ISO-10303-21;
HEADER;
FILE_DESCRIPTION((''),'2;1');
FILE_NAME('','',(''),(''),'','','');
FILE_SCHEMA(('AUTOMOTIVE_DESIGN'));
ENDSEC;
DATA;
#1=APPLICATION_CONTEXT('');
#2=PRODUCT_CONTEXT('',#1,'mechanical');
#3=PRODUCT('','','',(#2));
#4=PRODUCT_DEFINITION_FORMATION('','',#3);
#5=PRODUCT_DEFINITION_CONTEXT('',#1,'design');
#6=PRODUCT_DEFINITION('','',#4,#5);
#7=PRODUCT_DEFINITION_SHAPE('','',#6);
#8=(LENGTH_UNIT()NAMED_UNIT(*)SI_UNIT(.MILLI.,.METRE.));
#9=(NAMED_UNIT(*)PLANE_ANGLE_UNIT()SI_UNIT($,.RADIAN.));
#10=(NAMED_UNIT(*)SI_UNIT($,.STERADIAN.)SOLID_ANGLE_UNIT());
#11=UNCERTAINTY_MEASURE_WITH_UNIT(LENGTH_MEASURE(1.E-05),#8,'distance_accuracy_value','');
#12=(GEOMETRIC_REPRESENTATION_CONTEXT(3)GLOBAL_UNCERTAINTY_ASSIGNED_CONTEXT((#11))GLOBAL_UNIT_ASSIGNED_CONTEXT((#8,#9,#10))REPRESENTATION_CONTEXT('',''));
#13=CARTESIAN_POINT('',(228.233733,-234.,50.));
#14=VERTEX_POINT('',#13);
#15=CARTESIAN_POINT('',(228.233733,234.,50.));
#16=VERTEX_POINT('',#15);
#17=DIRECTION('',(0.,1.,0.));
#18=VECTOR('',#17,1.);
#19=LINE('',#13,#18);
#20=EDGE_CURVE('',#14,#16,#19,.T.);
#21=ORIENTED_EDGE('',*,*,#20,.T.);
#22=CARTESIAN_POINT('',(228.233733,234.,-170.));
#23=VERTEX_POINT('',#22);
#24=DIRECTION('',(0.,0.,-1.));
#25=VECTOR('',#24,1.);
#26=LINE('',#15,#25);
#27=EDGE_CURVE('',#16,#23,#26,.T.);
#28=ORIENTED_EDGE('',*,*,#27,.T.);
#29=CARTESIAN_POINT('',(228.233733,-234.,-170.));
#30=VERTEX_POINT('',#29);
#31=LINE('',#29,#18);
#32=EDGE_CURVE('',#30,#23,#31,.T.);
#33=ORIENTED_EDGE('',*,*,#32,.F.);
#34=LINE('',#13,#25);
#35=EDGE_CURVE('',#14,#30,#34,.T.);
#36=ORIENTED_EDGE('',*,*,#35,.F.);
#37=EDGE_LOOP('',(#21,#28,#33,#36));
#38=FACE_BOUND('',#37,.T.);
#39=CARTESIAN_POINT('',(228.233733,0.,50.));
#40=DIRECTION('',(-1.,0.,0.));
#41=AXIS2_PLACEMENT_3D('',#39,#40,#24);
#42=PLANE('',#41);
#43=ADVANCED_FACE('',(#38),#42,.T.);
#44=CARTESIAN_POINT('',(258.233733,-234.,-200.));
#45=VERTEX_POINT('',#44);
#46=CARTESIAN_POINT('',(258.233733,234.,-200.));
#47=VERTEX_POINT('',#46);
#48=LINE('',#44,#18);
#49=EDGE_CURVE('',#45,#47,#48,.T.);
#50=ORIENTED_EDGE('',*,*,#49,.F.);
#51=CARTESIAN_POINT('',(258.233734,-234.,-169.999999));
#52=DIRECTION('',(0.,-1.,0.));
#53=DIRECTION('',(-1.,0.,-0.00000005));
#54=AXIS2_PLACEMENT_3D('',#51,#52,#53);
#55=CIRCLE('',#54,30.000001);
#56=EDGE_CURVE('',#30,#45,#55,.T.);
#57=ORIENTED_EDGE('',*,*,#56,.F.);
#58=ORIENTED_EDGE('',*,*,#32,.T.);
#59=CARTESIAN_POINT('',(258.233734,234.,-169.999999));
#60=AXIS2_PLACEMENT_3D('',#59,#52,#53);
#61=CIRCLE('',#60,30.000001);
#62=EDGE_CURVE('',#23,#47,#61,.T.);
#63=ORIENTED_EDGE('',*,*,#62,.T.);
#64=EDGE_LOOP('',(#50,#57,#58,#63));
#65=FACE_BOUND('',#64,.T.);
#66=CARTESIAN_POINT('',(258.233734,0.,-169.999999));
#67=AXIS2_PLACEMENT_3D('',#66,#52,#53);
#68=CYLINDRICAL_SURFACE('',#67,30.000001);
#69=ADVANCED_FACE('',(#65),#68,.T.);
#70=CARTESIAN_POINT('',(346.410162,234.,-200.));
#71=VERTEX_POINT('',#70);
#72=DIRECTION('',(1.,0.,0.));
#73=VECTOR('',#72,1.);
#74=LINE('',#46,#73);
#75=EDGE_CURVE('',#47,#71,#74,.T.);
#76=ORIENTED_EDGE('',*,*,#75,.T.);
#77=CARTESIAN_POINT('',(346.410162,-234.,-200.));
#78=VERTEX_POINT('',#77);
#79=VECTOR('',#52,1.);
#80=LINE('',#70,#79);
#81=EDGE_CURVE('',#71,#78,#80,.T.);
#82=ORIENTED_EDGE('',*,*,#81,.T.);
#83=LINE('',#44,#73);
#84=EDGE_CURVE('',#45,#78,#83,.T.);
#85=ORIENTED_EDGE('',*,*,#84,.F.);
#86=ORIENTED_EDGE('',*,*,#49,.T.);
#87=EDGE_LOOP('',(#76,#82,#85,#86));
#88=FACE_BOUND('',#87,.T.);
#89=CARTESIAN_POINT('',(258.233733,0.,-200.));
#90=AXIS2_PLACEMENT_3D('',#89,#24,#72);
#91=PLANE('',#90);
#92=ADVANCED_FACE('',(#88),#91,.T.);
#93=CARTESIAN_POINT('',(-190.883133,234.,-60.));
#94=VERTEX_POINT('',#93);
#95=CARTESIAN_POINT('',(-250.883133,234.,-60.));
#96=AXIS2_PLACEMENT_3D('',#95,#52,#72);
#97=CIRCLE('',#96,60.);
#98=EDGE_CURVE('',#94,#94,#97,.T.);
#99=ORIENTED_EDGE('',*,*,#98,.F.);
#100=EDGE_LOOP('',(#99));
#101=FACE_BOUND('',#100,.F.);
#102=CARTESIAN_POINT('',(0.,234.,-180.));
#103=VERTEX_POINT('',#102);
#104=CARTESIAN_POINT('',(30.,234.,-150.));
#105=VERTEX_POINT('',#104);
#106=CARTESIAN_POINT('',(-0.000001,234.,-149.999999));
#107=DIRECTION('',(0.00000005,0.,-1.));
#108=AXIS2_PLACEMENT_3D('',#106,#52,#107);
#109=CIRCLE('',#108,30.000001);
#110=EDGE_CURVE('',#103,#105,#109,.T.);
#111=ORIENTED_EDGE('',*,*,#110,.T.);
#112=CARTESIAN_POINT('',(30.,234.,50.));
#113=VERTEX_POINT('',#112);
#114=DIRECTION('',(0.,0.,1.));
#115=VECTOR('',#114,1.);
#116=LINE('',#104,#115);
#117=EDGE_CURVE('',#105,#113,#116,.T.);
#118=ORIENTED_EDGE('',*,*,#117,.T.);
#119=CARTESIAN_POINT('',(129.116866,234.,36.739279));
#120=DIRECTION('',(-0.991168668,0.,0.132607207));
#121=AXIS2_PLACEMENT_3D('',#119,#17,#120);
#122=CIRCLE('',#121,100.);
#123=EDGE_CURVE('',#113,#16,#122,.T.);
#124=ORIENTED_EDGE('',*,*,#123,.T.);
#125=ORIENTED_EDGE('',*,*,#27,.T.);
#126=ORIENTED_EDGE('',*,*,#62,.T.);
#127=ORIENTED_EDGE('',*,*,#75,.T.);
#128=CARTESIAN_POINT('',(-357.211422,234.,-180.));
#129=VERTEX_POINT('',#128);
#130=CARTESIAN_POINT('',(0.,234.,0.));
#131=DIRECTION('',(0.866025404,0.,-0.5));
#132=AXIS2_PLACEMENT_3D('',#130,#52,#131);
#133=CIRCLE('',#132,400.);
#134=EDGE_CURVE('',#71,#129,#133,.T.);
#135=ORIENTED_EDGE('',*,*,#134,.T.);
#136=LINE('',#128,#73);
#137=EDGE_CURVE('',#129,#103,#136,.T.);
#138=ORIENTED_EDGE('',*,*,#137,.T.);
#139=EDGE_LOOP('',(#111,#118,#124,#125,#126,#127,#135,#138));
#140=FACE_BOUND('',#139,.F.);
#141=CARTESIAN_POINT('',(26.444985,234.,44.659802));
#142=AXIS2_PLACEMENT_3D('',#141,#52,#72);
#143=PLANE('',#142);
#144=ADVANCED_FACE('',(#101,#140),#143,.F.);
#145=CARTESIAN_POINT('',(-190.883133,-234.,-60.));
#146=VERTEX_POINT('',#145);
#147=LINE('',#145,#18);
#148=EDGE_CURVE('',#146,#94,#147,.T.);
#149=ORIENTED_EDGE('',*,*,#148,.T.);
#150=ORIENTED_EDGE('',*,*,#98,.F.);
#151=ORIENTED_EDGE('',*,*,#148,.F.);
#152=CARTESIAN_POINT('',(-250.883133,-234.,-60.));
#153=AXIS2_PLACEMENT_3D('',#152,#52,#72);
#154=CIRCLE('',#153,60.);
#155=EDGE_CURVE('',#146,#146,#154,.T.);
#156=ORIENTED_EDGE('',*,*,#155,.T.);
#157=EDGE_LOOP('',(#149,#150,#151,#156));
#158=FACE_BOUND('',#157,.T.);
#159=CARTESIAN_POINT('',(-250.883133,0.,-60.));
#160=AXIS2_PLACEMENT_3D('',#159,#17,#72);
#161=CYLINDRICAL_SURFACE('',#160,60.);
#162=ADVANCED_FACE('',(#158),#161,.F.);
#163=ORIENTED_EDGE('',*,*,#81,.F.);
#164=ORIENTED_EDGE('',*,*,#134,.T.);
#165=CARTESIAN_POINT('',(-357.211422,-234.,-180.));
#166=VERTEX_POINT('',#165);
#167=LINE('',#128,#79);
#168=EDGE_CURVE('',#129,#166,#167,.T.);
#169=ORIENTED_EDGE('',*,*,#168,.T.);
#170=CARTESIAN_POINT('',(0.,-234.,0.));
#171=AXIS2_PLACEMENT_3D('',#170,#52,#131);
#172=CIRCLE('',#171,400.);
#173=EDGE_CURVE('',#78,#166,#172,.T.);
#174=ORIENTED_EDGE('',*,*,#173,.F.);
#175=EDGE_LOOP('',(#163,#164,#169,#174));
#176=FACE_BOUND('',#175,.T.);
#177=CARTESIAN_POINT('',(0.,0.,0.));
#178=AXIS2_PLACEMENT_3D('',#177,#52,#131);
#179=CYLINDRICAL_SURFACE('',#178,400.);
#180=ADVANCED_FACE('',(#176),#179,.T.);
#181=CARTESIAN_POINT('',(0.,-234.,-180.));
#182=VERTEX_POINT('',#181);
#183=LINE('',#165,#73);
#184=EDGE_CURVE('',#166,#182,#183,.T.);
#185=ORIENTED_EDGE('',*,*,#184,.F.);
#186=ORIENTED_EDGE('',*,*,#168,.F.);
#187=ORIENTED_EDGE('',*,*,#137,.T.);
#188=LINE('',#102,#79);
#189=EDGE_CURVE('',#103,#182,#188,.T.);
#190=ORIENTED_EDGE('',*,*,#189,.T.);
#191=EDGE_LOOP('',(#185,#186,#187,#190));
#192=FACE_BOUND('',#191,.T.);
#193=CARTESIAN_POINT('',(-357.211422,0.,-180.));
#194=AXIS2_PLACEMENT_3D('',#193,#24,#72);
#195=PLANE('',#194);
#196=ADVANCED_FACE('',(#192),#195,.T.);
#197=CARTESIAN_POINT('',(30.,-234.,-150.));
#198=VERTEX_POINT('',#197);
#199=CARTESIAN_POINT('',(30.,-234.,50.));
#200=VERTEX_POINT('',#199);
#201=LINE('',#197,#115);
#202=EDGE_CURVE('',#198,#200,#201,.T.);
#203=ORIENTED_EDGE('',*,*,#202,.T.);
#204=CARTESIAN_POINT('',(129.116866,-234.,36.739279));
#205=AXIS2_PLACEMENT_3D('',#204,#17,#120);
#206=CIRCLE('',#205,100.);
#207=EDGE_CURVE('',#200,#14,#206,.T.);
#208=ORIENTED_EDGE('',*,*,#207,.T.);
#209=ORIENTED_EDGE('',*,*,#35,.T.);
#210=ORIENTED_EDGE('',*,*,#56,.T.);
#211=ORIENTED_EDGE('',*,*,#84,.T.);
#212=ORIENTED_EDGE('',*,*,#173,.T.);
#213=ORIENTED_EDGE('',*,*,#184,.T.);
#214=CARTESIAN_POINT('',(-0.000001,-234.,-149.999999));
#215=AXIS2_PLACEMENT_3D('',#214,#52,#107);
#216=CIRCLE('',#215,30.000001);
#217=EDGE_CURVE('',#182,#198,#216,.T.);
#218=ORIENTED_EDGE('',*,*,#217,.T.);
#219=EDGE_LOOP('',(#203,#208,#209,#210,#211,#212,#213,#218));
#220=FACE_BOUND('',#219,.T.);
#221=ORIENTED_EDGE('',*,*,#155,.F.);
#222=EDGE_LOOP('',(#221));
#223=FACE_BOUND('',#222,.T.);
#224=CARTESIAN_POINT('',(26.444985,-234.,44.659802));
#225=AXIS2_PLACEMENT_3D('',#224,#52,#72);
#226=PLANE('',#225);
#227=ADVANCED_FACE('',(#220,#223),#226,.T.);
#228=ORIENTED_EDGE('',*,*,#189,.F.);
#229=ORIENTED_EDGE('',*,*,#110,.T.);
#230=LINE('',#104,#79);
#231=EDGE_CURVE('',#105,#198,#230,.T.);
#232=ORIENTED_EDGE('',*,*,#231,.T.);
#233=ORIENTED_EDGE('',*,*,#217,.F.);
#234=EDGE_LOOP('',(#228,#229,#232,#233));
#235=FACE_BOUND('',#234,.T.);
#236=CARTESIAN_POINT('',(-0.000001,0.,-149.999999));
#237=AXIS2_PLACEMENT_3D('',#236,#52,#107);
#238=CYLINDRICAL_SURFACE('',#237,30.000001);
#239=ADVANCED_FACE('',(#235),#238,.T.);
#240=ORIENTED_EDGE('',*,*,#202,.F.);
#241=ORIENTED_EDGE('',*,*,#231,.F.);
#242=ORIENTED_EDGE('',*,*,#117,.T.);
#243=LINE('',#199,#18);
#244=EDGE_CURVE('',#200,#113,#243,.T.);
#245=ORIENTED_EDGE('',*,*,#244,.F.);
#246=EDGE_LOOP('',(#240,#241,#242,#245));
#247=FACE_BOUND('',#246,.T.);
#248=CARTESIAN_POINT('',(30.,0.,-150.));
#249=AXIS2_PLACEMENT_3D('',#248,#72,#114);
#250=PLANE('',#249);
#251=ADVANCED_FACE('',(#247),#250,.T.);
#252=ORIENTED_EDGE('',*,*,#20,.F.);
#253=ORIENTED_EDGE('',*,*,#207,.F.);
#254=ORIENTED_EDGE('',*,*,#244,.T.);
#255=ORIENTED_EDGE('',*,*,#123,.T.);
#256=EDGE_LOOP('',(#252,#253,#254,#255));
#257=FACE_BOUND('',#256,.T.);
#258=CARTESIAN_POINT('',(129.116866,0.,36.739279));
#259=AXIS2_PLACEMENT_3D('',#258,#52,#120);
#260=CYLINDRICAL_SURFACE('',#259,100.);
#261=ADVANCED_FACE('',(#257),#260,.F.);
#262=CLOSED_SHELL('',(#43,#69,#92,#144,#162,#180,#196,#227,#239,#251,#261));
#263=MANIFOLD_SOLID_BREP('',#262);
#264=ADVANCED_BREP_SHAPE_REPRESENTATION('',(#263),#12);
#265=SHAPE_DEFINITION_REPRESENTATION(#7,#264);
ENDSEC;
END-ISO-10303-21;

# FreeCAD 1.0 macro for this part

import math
import FreeCAD as App
import Part
import Sketcher

V = App.Vector
Q = App.Units.Quantity

doc = App.newDocument("Part")
body = doc.addObject("PartDesign::Body", "Body")

# Sketch on XZ plane
sketch1 = doc.addObject("Sketcher::SketchObject", "Sketch")
body.addObject(sketch1)
sketch1.AttachmentSupport = (doc.XZ_Plane, [""])
sketch1.MapMode = "FlatFace"
sketch1.addGeometry([
    Part.LineSegment(V(258, -200, 0), V(346, -200, 0)),  # 0
    Part.ArcOfCircle(Part.Circle(V(0, 0, 0), V(0, 0, 1), 400), math.radians(-30), math.radians(207)),  # 1
    Part.LineSegment(V(-357, -180, 0), V(0, -180, 0)),  # 2
    Part.ArcOfCircle(Part.Circle(V(0, -150, 0), V(0, 0, 1), 30), math.radians(-90), math.radians(0)),  # 3
    Part.LineSegment(V(30, -150, 0), V(30, 50, 0)),  # 4
    Part.ArcOfCircle(Part.Circle(V(129, 37, 0), V(0, 0, 1), 100), math.radians(8), math.radians(172)),  # 5
    Part.LineSegment(V(228, 50, 0), V(228, -170, 0)),  # 6
    Part.ArcOfCircle(Part.Circle(V(258, -170, 0), V(0, 0, 1), 30), math.radians(-180), math.radians(-90)),  # 7
    Part.Circle(V(-251, -60, 0), V(0, 0, 1), 60),  # 8
], False)
sketch1.addConstraint([
    Sketcher.Constraint("Coincident", 0, 2, 1, 1),
    Sketcher.Constraint("Coincident", 1, 2, 2, 1),
    Sketcher.Constraint("Tangent", 2, 2, 3, 1),
    Sketcher.Constraint("Tangent", 3, 2, 4, 1),
    Sketcher.Constraint("Coincident", 4, 2, 5, 2),
    Sketcher.Constraint("Coincident", 5, 1, 6, 1),
    Sketcher.Constraint("Tangent", 6, 2, 7, 1),
    Sketcher.Constraint("Tangent", 7, 2, 0, 1),
    Sketcher.Constraint("Horizontal", 0),
    Sketcher.Constraint("Horizontal", 2),
    Sketcher.Constraint("Vertical", 4),
    Sketcher.Constraint("Vertical", 6),
    Sketcher.Constraint("Coincident", 1, 3, -1, 1),
    Sketcher.Constraint("Equal", 3, 7),
    Sketcher.Constraint("PointOnObject", 3, 3, -2),
    Sketcher.Constraint("Horizontal", 4, 2, 5, 1),
    Sketcher.Constraint("Diameter", 8, Q("120 mm")),
    Sketcher.Constraint("Radius", 1, Q("400 mm")),
    Sketcher.Constraint("Radius", 3, Q("30.000001 mm")),
    Sketcher.Constraint("Radius", 5, Q("100 mm")),
    Sketcher.Constraint("DistanceY", 4, 1, 4, 2, Q("200 mm")),
    Sketcher.Constraint("DistanceY", 6, 2, 6, 1, Q("220 mm")),
    Sketcher.Constraint("DistanceY", 3, 3, -1, 1, Q("149.999999 mm")),
    Sketcher.Constraint("DistanceY", 8, 3, -1, 1, Q("60 mm")),
    Sketcher.Constraint("DistanceX", 8, 3, 5, 3, Q("379.999999 mm")),
    Sketcher.Constraint("DistanceX", 0, 1, 0, 2, Q("88.176429 mm")),
])
pad1 = doc.addObject("PartDesign::Pad", "Pad")
body.addObject(pad1)
pad1.Profile = sketch1
pad1.Length = 468
pad1.Midplane = True

doc.recompute()
